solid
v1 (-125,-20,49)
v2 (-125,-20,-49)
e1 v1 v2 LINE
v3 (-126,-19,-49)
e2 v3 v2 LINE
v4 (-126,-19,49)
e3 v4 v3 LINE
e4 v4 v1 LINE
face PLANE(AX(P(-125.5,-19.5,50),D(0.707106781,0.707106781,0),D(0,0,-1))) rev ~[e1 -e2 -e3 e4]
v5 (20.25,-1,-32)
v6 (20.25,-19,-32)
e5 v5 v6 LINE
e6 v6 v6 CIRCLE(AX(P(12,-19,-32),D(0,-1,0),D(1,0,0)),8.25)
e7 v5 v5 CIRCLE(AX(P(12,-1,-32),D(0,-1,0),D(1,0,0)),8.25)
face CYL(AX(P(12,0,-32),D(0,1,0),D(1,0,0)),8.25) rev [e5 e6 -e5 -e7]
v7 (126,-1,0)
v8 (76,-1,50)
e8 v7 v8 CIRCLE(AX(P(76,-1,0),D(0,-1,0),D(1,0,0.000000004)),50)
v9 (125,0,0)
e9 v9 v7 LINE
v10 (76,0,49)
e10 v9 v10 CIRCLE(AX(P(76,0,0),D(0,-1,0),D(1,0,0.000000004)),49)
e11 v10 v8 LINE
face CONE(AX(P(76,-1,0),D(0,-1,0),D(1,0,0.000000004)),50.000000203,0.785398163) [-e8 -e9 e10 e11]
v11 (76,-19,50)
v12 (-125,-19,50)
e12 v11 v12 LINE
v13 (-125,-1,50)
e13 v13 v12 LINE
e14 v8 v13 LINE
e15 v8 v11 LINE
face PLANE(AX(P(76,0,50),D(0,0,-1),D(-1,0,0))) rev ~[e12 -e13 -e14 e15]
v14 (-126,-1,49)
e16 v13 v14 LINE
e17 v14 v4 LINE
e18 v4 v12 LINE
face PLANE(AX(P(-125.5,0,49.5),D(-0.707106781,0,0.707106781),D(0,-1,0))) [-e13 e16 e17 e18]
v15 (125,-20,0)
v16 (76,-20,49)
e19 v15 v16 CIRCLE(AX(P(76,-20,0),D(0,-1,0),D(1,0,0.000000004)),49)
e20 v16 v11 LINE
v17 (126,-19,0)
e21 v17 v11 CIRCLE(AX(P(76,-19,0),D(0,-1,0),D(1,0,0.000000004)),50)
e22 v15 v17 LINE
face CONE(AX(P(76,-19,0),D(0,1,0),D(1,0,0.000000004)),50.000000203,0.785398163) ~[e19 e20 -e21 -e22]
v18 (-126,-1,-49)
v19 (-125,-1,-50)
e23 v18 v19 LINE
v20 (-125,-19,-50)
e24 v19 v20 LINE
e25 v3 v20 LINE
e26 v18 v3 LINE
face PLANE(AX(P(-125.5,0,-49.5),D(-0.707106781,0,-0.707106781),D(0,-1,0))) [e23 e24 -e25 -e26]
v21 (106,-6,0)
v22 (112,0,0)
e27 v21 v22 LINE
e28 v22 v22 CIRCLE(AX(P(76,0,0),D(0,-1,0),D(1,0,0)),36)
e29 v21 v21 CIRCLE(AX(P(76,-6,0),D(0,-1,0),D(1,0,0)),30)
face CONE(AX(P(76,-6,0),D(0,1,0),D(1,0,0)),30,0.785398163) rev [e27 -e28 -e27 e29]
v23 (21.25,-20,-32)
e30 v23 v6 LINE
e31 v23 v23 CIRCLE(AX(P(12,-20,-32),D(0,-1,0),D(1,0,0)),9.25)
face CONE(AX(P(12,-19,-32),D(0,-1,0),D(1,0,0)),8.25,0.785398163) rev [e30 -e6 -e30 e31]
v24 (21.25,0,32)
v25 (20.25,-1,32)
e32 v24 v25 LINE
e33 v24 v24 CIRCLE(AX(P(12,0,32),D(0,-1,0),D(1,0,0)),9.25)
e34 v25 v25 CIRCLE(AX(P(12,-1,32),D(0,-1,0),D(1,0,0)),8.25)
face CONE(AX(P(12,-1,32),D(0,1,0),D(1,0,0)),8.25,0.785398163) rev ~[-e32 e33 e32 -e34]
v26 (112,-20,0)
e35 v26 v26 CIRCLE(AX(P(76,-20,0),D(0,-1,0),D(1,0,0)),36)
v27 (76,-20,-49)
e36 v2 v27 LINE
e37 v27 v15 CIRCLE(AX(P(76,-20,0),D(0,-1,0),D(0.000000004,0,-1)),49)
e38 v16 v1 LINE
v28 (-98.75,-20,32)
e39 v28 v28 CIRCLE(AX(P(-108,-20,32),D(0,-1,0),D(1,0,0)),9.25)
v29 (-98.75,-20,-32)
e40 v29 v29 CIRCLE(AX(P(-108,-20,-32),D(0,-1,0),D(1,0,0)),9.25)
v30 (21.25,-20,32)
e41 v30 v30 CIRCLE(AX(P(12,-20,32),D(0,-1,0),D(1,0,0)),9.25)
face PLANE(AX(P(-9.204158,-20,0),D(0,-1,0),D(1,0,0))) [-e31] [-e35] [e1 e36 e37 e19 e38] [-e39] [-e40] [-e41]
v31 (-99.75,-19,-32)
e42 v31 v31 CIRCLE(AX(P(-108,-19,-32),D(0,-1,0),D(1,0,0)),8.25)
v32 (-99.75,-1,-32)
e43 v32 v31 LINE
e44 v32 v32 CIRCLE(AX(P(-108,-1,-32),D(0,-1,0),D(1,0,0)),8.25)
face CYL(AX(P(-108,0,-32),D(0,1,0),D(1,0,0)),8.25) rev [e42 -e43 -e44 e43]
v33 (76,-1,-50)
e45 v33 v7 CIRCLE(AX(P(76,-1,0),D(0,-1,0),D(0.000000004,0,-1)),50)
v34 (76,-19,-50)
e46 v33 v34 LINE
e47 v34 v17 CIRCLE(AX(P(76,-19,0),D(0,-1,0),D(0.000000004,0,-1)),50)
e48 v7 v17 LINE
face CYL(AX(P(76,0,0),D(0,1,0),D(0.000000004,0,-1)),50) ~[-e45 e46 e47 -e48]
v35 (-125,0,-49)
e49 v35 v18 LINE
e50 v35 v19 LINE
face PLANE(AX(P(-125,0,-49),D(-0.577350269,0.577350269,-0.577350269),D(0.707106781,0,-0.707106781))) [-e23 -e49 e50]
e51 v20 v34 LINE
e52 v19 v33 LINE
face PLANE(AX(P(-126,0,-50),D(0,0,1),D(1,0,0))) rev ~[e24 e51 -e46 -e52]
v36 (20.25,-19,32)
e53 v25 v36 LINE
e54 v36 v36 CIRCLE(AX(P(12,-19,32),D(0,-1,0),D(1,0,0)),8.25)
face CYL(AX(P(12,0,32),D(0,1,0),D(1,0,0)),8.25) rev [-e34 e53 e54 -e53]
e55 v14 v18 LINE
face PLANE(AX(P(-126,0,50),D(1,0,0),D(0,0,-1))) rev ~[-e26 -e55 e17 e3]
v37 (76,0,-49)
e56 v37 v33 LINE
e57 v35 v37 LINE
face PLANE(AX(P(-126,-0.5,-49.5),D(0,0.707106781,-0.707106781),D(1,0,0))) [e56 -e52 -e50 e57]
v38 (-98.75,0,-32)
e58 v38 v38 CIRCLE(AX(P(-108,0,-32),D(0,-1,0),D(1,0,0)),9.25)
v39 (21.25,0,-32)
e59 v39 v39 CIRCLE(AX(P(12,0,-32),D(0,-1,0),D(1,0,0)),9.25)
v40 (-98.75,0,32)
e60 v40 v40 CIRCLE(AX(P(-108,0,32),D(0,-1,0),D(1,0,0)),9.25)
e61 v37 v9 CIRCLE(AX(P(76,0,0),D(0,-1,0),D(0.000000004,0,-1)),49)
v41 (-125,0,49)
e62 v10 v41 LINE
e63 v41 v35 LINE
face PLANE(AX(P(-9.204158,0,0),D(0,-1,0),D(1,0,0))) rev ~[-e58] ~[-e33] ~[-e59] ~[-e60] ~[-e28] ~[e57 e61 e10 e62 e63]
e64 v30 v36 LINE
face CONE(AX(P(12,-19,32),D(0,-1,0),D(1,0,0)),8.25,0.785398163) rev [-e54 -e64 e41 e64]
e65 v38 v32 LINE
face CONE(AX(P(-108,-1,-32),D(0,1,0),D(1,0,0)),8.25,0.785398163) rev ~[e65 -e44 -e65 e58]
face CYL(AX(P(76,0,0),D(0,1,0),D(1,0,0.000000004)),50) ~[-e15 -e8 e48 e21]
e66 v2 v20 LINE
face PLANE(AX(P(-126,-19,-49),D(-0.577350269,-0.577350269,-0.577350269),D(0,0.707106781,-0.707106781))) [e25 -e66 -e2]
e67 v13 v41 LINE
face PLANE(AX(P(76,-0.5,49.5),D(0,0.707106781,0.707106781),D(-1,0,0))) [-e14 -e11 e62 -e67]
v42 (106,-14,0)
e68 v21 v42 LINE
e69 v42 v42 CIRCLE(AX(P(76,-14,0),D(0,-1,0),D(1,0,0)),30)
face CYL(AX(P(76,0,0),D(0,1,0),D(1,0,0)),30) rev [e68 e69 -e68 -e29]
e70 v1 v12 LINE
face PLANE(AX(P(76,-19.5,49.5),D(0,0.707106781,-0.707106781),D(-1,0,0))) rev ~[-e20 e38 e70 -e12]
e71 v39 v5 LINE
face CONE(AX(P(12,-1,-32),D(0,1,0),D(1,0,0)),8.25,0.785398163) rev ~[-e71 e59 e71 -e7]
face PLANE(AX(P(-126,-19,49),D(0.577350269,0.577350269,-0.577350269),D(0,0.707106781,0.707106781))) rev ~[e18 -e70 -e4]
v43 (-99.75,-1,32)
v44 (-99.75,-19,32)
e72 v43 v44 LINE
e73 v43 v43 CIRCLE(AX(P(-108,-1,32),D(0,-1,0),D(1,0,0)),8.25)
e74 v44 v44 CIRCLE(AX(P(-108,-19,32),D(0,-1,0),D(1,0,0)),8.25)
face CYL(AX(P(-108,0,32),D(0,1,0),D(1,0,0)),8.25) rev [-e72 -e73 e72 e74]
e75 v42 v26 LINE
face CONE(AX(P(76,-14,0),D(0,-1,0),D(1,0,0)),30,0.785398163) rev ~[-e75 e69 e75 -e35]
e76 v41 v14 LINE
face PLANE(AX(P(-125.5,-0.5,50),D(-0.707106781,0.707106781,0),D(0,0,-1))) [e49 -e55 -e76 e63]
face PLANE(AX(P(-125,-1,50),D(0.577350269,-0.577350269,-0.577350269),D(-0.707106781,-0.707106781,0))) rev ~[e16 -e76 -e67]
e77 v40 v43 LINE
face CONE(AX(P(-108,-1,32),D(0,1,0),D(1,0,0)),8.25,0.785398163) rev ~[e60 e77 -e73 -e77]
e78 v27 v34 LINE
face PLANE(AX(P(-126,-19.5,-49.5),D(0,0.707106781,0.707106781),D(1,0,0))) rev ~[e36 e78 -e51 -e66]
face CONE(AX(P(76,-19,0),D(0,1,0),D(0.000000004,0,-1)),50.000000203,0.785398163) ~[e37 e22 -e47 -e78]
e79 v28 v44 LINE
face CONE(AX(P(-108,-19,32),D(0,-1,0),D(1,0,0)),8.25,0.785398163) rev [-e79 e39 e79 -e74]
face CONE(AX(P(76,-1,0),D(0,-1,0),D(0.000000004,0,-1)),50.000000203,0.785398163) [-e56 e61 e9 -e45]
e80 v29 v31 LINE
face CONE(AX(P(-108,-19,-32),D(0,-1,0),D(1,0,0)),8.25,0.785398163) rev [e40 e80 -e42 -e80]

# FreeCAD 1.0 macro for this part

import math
import FreeCAD as App
import Part
import Sketcher
from FreeCAD import Vector
Q = App.Units.Quantity


def edges_at(feature, points):
    """Names of the edges that pass closest to the given points."""
    edges = feature.Shape.Edges
    near = lambda p: min(range(len(edges)), key=lambda i: edges[i].distToShape(Part.Vertex(*p))[0])
    return sorted({f"Edge{near(p) + 1}" for p in points})

doc = App.newDocument("Part")
body = doc.addObject("PartDesign::Body", "Body")

# Sketch on XZ plane
sketch1 = body.newObject("Sketcher::SketchObject", "Sketch")
sketch1.AttachmentSupport = (doc.getObject("XZ_Plane"), [""])
sketch1.MapMode = "FlatFace"
sketch1.addGeometry([
    Part.LineSegment(Vector(-126, -50, 0), Vector(76, -50, 0)),  # 0
    Part.ArcOfCircle(Part.Circle(Vector(76, 0, 0), Vector(0, 0, 1), 50), math.radians(-90), math.radians(0)),  # 1
    Part.ArcOfCircle(Part.Circle(Vector(76, 0, 0), Vector(0, 0, 1), 50), math.radians(0), math.radians(90)),  # 2
    Part.LineSegment(Vector(76, 50, 0), Vector(-126, 50, 0)),  # 3
    Part.LineSegment(Vector(-126, 50, 0), Vector(-126, -50, 0)),  # 4
    Part.Circle(Vector(-108, -32, 0), Vector(0, 0, 1), 8),  # 5
    Part.Circle(Vector(12, -32, 0), Vector(0, 0, 1), 8),  # 6
    Part.Circle(Vector(76, 0, 0), Vector(0, 0, 1), 30),  # 7
    Part.Circle(Vector(-108, 32, 0), Vector(0, 0, 1), 8),  # 8
    Part.Circle(Vector(12, 32, 0), Vector(0, 0, 1), 8),  # 9
], False)
sketch1.addConstraint([
    Sketcher.Constraint("Tangent", 0, 2, 1, 1),
    Sketcher.Constraint("Tangent", 1, 2, 2, 1),
    Sketcher.Constraint("Tangent", 2, 2, 3, 1),
    Sketcher.Constraint("Coincident", 3, 2, 4, 1),
    Sketcher.Constraint("Coincident", 4, 2, 0, 1),
    Sketcher.Constraint("Horizontal", 0),
    Sketcher.Constraint("Horizontal", 3),
    Sketcher.Constraint("Vertical", 4),
    Sketcher.Constraint("Coincident", 7, 3, 1, 3),
    Sketcher.Constraint("Equal", 1, 2),
    Sketcher.Constraint("Equal", 5, 6),
    Sketcher.Constraint("Equal", 6, 8),
    Sketcher.Constraint("Equal", 8, 9),
    Sketcher.Constraint("Symmetric", 5, 3, 8, 3, -1),
    Sketcher.Constraint("Symmetric", 6, 3, 9, 3, -1),
    Sketcher.Constraint("PointOnObject", 1, 3, -1),
    Sketcher.Constraint("PointOnObject", 1, 2, -1),
    Sketcher.Constraint("Horizontal", 5, 3, 6, 3),
    Sketcher.Constraint("Diameter", 7, Q("60 mm")),
    Sketcher.Constraint("Radius", 1, Q("50 mm")),
    Sketcher.Constraint("Diameter", 5, Q("16.5 mm")),
    Sketcher.Constraint("DistanceX", 0, 1, 0, 2, Q("202 mm")),
    Sketcher.Constraint("DistanceX", -1, 1, 1, 3, Q("76 mm")),
    Sketcher.Constraint("DistanceX", 5, 3, -1, 1, Q("108 mm")),
    Sketcher.Constraint("DistanceY", 5, 3, -1, 1, Q("32 mm")),
    Sketcher.Constraint("DistanceX", -1, 1, 6, 3, Q("12 mm")),
])
pad1 = body.newObject("PartDesign::Pad", "Pad")
pad1.Profile = sketch1
pad1.Length = 20
doc.recompute()

chamfer = body.newObject("PartDesign::Chamfer", "Chamfer")
chamfer.Base = (pad1, edges_at(pad1, [(46, -20, 0), (46, 0, 0)]))
chamfer.Size = 6
doc.recompute()

chamfer2 = body.newObject("PartDesign::Chamfer", "Chamfer001")
chamfer2.Base = (chamfer, edges_at(chamfer, [
    (-116.25, -20, -32),
    (-116.25, -20, 32),
    (3.75, -20, -32),
    (3.75, -20, 32),
    (-25, -20, -50),
    (-126, -20, 0),
    (-25, -20, 50),
    (111.355, -20, -35.355),
    (-126, -10, -50),
    (-126, 0, 0),
    (-25, 0, -50),
    (-25, 0, 50),
    (-126, -10, 50),
    (-116.25, 0, -32),
    (-116.25, 0, 32),
    (3.75, 0, -32),
    (3.75, 0, 32),
    (111.355, 0, -35.355),
]))
chamfer2.Size = 1

doc.recompute()
